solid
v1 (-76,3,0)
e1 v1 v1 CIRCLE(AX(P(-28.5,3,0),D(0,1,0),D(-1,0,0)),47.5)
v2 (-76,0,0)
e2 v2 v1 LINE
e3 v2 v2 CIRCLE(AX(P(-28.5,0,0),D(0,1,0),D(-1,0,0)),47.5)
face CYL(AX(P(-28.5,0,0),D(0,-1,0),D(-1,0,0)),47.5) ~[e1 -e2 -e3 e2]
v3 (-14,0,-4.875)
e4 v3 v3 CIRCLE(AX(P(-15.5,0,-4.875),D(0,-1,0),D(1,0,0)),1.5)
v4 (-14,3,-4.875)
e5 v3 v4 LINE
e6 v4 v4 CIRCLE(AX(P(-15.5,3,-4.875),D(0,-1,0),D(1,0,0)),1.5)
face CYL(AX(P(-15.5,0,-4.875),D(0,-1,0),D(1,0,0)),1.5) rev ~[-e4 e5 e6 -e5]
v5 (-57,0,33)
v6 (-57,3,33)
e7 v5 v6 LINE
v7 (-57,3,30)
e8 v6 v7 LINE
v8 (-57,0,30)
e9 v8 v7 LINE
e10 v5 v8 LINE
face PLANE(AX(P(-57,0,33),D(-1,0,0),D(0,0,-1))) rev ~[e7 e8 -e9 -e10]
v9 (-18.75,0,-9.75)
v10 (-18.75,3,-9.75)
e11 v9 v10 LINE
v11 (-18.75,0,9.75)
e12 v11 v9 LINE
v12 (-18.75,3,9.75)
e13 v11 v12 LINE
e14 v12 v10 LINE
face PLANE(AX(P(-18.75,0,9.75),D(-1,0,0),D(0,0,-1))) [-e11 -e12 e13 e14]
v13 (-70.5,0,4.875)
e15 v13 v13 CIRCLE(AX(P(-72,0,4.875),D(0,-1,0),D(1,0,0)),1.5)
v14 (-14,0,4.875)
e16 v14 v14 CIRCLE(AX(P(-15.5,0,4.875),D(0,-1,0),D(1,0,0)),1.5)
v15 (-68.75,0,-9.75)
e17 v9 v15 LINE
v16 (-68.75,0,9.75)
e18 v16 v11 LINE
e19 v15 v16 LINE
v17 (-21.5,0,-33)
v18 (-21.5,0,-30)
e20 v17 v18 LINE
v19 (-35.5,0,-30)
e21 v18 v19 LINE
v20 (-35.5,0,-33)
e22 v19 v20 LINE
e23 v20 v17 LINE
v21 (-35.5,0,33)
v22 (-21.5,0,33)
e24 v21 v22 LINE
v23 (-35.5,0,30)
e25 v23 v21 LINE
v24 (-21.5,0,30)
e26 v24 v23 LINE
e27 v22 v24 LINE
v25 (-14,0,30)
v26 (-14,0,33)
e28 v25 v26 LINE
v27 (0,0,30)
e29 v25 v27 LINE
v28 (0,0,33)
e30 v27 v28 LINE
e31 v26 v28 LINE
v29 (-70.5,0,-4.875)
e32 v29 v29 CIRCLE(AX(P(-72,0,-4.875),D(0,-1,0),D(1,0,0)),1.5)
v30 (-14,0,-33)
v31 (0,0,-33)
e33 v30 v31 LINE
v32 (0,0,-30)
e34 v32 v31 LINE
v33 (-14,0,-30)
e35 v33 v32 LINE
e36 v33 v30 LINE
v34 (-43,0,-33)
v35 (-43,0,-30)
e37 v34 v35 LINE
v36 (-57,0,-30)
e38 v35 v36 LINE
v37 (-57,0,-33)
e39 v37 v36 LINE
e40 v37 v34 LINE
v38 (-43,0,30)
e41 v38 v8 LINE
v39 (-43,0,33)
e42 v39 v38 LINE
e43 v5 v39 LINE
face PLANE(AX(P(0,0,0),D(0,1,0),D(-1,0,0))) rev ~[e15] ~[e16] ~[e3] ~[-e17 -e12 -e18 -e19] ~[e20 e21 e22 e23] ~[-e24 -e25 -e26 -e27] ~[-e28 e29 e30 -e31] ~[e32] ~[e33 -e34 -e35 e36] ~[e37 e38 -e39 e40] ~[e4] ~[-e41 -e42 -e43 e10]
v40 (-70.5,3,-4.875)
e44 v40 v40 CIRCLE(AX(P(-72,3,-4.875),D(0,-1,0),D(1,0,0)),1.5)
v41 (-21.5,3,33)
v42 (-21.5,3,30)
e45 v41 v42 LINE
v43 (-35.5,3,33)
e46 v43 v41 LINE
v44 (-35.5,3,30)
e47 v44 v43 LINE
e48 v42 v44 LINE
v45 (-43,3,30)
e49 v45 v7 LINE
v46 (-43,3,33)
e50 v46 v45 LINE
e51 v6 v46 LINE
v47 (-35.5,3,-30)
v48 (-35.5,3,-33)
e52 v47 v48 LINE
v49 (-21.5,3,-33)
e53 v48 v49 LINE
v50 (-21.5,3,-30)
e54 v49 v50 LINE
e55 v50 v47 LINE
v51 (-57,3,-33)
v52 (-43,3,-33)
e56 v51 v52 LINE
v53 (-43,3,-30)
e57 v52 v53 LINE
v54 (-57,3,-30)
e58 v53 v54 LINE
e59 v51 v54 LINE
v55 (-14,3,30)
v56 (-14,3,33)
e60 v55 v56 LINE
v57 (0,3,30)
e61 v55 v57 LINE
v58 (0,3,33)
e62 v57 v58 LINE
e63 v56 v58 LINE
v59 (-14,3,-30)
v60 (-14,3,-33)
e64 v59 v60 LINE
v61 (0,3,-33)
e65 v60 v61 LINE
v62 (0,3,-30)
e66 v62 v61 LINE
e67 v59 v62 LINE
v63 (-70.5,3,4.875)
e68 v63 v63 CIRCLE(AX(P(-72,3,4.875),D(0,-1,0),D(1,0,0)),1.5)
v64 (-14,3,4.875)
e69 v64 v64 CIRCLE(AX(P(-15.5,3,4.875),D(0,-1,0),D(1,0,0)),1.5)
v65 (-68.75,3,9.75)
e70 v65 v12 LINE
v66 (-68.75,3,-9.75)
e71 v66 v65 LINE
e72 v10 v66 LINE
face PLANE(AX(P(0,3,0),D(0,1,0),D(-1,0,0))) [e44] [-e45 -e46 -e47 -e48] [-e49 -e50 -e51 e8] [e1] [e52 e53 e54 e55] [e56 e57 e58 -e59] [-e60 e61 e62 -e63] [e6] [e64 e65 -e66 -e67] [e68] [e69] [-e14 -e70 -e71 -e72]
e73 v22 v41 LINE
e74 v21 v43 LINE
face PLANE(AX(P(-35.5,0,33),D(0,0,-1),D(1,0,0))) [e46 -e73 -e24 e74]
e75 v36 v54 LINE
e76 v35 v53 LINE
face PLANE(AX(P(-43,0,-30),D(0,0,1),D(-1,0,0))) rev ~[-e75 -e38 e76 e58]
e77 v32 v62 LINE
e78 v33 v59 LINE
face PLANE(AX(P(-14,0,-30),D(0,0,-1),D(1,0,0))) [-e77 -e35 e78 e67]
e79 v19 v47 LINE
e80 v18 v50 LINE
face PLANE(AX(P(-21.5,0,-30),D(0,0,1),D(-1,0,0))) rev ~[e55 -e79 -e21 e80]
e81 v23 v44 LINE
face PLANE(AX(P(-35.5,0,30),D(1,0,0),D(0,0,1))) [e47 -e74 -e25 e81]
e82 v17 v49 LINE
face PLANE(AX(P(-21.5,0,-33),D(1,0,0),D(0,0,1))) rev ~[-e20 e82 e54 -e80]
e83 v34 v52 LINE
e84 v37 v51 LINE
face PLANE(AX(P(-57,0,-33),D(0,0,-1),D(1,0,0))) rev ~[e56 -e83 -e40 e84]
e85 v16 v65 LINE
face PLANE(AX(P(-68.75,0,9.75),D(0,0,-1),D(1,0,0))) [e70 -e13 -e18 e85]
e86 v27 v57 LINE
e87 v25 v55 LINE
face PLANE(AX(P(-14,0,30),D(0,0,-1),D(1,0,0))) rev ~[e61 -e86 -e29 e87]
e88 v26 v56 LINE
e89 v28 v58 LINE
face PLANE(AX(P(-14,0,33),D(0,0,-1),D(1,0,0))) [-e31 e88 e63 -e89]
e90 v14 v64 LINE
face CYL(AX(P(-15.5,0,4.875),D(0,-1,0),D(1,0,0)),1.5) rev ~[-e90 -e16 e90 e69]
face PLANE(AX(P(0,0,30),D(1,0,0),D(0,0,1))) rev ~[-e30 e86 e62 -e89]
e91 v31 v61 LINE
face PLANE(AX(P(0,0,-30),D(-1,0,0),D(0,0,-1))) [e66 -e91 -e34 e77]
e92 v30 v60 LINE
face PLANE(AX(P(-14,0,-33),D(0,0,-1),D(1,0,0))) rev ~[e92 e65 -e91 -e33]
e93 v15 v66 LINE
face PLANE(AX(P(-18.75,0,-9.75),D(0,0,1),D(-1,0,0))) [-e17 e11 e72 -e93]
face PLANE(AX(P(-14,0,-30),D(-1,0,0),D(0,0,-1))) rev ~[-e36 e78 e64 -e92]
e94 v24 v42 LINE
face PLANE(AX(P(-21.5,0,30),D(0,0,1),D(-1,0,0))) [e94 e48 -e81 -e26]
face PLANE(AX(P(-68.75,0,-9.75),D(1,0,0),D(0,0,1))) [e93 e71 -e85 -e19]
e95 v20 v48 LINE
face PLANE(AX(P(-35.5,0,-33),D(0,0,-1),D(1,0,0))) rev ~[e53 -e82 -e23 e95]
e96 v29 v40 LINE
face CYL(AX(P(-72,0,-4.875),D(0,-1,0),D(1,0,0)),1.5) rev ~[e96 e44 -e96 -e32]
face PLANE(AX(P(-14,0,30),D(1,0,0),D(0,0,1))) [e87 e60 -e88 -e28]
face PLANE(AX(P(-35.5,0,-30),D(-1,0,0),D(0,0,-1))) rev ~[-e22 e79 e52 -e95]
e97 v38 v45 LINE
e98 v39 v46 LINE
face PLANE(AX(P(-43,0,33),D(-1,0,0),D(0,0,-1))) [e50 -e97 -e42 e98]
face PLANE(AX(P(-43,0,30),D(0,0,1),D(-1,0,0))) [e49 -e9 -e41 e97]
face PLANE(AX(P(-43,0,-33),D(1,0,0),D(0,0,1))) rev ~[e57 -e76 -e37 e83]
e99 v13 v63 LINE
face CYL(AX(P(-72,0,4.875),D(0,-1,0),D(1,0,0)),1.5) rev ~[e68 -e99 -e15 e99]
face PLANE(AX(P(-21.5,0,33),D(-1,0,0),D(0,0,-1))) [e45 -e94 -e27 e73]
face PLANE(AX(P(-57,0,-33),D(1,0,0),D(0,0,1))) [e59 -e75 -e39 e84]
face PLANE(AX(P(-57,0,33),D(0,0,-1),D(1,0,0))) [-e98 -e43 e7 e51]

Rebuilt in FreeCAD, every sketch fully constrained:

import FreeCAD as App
import Part
import Sketcher

V = App.Vector

doc = App.newDocument("Part")
body = doc.addObject("PartDesign::Body", "Body")

# Sketch on XZ plane
sketch1 = body.newObject("Sketcher::SketchObject", "Sketch")
sketch1.AttachmentSupport = (doc.getObject("XZ_Plane"), [""])
sketch1.MapMode = "FlatFace"
sketch1.addGeometry(Part.Circle(V(-28.5, 0, 0), V(0, 0, 1), 47.5), False)
sketch1.addGeometry(Part.LineSegment(V(0, -30, 0), V(-14, -30, 0)), False)
sketch1.addGeometry(Part.LineSegment(V(-14, -30, 0), V(-14, -33, 0)), False)
sketch1.addGeometry(Part.LineSegment(V(-14, -33, 0), V(0, -33, 0)), False)
sketch1.addGeometry(Part.LineSegment(V(0, -33, 0), V(0, -30, 0)), False)
sketch1.addGeometry(Part.LineSegment(V(-21.5, -30, 0), V(-35.5, -30, 0)), False)
sketch1.addGeometry(Part.LineSegment(V(-35.5, -30, 0), V(-35.5, -33, 0)), False)
sketch1.addGeometry(Part.LineSegment(V(-35.5, -33, 0), V(-21.5, -33, 0)), False)
sketch1.addGeometry(Part.LineSegment(V(-21.5, -33, 0), V(-21.5, -30, 0)), False)
sketch1.addGeometry(Part.LineSegment(V(-57, -30, 0), V(-57, -33, 0)), False)
sketch1.addGeometry(Part.LineSegment(V(-57, -33, 0), V(-43, -33, 0)), False)
sketch1.addGeometry(Part.LineSegment(V(-43, -33, 0), V(-43, -30, 0)), False)
sketch1.addGeometry(Part.LineSegment(V(-43, -30, 0), V(-57, -30, 0)), False)
sketch1.addGeometry(Part.Circle(V(-28.5, -8, 0), V(0, 0, 1), 1.5), False)
sketch1.addGeometry(Part.Circle(V(-20.5, 0, 0), V(0, 0, 1), 1.5), False)
sketch1.addGeometry(Part.LineSegment(V(-14, 33, 0), V(-14, 30, 0)), False)
sketch1.addGeometry(Part.LineSegment(V(-14, 30, 0), V(0, 30, 0)), False)
sketch1.addGeometry(Part.LineSegment(V(0, 30, 0), V(0, 33, 0)), False)
sketch1.addGeometry(Part.LineSegment(V(0, 33, 0), V(-14, 33, 0)), False)
sketch1.addGeometry(Part.Circle(V(-28.5, 0, 0), V(0, 0, 1), 1.5), False)
sketch1.addGeometry(Part.Circle(V(-36.5, 0, 0), V(0, 0, 1), 1.5), False)
sketch1.addGeometry(Part.Circle(V(-28.5, 8, 0), V(0, 0, 1), 1.5), False)
sketch1.addGeometry(Part.LineSegment(V(-35.5, 33, 0), V(-35.5, 30, 0)), False)
sketch1.addGeometry(Part.LineSegment(V(-35.5, 30, 0), V(-21.5, 30, 0)), False)
sketch1.addGeometry(Part.LineSegment(V(-21.5, 30, 0), V(-21.5, 33, 0)), False)
sketch1.addGeometry(Part.LineSegment(V(-21.5, 33, 0), V(-35.5, 33, 0)), False)
sketch1.addGeometry(Part.LineSegment(V(-43, 33, 0), V(-57, 33, 0)), False)
sketch1.addGeometry(Part.LineSegment(V(-57, 33, 0), V(-57, 30, 0)), False)
sketch1.addGeometry(Part.LineSegment(V(-57, 30, 0), V(-43, 30, 0)), False)
sketch1.addGeometry(Part.LineSegment(V(-43, 30, 0), V(-43, 33, 0)), False)
sketch1.addConstraint(Sketcher.Constraint("Coincident", 1, 2, 2, 1))
sketch1.addConstraint(Sketcher.Constraint("Coincident", 2, 2, 3, 1))
sketch1.addConstraint(Sketcher.Constraint("Coincident", 3, 2, 4, 1))
sketch1.addConstraint(Sketcher.Constraint("Coincident", 4, 2, 1, 1))
sketch1.addConstraint(Sketcher.Constraint("Coincident", 5, 2, 6, 1))
sketch1.addConstraint(Sketcher.Constraint("Coincident", 6, 2, 7, 1))
sketch1.addConstraint(Sketcher.Constraint("Coincident", 7, 2, 8, 1))
sketch1.addConstraint(Sketcher.Constraint("Coincident", 8, 2, 5, 1))
sketch1.addConstraint(Sketcher.Constraint("Coincident", 9, 2, 10, 1))
sketch1.addConstraint(Sketcher.Constraint("Coincident", 10, 2, 11, 1))
sketch1.addConstraint(Sketcher.Constraint("Coincident", 11, 2, 12, 1))
sketch1.addConstraint(Sketcher.Constraint("Coincident", 12, 2, 9, 1))
sketch1.addConstraint(Sketcher.Constraint("Coincident", 15, 2, 16, 1))
sketch1.addConstraint(Sketcher.Constraint("Coincident", 16, 2, 17, 1))
sketch1.addConstraint(Sketcher.Constraint("Coincident", 17, 2, 18, 1))
sketch1.addConstraint(Sketcher.Constraint("Coincident", 18, 2, 15, 1))
sketch1.addConstraint(Sketcher.Constraint("Coincident", 22, 2, 23, 1))
sketch1.addConstraint(Sketcher.Constraint("Coincident", 23, 2, 24, 1))
sketch1.addConstraint(Sketcher.Constraint("Coincident", 24, 2, 25, 1))
sketch1.addConstraint(Sketcher.Constraint("Coincident", 25, 2, 22, 1))
sketch1.addConstraint(Sketcher.Constraint("Coincident", 26, 2, 27, 1))
sketch1.addConstraint(Sketcher.Constraint("Coincident", 27, 2, 28, 1))
sketch1.addConstraint(Sketcher.Constraint("Coincident", 28, 2, 29, 1))
sketch1.addConstraint(Sketcher.Constraint("Coincident", 29, 2, 26, 1))
sketch1.addConstraint(Sketcher.Constraint("Horizontal", 1))
sketch1.addConstraint(Sketcher.Constraint("Vertical", 2))
sketch1.addConstraint(Sketcher.Constraint("Horizontal", 3))
sketch1.addConstraint(Sketcher.Constraint("Vertical", 4))
sketch1.addConstraint(Sketcher.Constraint("Horizontal", 5))
sketch1.addConstraint(Sketcher.Constraint("Vertical", 6))
sketch1.addConstraint(Sketcher.Constraint("Horizontal", 7))
sketch1.addConstraint(Sketcher.Constraint("Vertical", 8))
sketch1.addConstraint(Sketcher.Constraint("Vertical", 9))
sketch1.addConstraint(Sketcher.Constraint("Horizontal", 10))
sketch1.addConstraint(Sketcher.Constraint("Vertical", 11))
sketch1.addConstraint(Sketcher.Constraint("Horizontal", 12))
sketch1.addConstraint(Sketcher.Constraint("Vertical", 15))
sketch1.addConstraint(Sketcher.Constraint("Horizontal", 16))
sketch1.addConstraint(Sketcher.Constraint("Vertical", 17))
sketch1.addConstraint(Sketcher.Constraint("Horizontal", 18))
sketch1.addConstraint(Sketcher.Constraint("Vertical", 22))
sketch1.addConstraint(Sketcher.Constraint("Horizontal", 23))
sketch1.addConstraint(Sketcher.Constraint("Vertical", 24))
sketch1.addConstraint(Sketcher.Constraint("Horizontal", 25))
sketch1.addConstraint(Sketcher.Constraint("Horizontal", 26))
sketch1.addConstraint(Sketcher.Constraint("Vertical", 27))
sketch1.addConstraint(Sketcher.Constraint("Horizontal", 28))
sketch1.addConstraint(Sketcher.Constraint("Vertical", 29))
sketch1.addConstraint(Sketcher.Constraint("Coincident", 19, 3, 0, 3))
sketch1.addConstraint(Sketcher.Constraint("Equal", 13, 14))
sketch1.addConstraint(Sketcher.Constraint("Equal", 14, 19))
sketch1.addConstraint(Sketcher.Constraint("Equal", 19, 20))
sketch1.addConstraint(Sketcher.Constraint("Equal", 20, 21))
sketch1.addConstraint(Sketcher.Constraint("Symmetric", 4, 2, 16, 2, -1, 1))
sketch1.addConstraint(Sketcher.Constraint("Symmetric", 13, 3, 21, 3, -1))
sketch1.addConstraint(Sketcher.Constraint("Symmetric", 3, 2, 17, 2, -1))
sketch1.addConstraint(Sketcher.Constraint("Symmetric", 5, 2, 22, 2, -1))
sketch1.addConstraint(Sketcher.Constraint("Symmetric", 7, 2, 24, 2, -1))
sketch1.addConstraint(Sketcher.Constraint("Symmetric", 9, 2, 26, 2, -1))
sketch1.addConstraint(Sketcher.Constraint("Symmetric", 11, 2, 28, 2, -1))
sketch1.addConstraint(Sketcher.Constraint("PointOnObject", 0, 3, -1))
sketch1.addConstraint(Sketcher.Constraint("PointOnObject", 14, 3, -1))
sketch1.addConstraint(Sketcher.Constraint("PointOnObject", 20, 3, -1))
sketch1.addConstraint(Sketcher.Constraint("Horizontal", 4, 2, 5, 2))
sketch1.addConstraint(Sketcher.Constraint("Horizontal", 3, 2, 6, 2))
sketch1.addConstraint(Sketcher.Constraint("Horizontal", 7, 2, 9, 2))
sketch1.addConstraint(Sketcher.Constraint("Horizontal", 8, 2, 11, 2))
sketch1.addConstraint(Sketcher.Constraint("Vertical", 0, 3, 13, 3))
sketch1.addConstraint(Sketcher.Constraint("Vertical", 2, 2, 15, 2))
sketch1.addConstraint(Sketcher.Constraint("Equal", 3, 5))
sketch1.addConstraint(Sketcher.Constraint("Equal", 7, 10))
sketch1.addConstraint(Sketcher.Constraint("Diameter", 0, 95.0))
sketch1.addConstraint(Sketcher.Constraint("Diameter", 13, 3.0))
sketch1.addConstraint(Sketcher.Constraint("DistanceX", 1, 2, 1, 1, 14.0))
sketch1.addConstraint(Sketcher.Constraint("DistanceY", 2, 2, 2, 1, 3.0))
sketch1.addConstraint(Sketcher.Constraint("DistanceY", 13, 3, -1, 1, 8.0))
sketch1.addConstraint(Sketcher.Constraint("DistanceY", 1, 2, -1, 1, 30.0))
sketch1.addConstraint(Sketcher.Constraint("DistanceX", 9, 2, -1, 1, 57.0))
sketch1.addConstraint(Sketcher.Constraint("DistanceX", 0, 3, 14, 3, 8.0))
sketch1.addConstraint(Sketcher.Constraint("DistanceX", 20, 3, 0, 3, 8.0))
sketch1.addConstraint(Sketcher.Constraint("DistanceX", 5, 2, 13, 3, 7.0))
sketch1.addConstraint(Sketcher.Constraint("DistanceX", 0, 3, -1, 1, 28.5))
pad1 = body.newObject("PartDesign::Pad", "Pad")
pad1.Profile = sketch1
pad1.Length = 3
pad1.Reversed = True

# Sketch on XZ plane
sketch2 = body.newObject("Sketcher::SketchObject", "Sketch001")
sketch2.AttachmentSupport = (doc.getObject("XZ_Plane"), [""])
sketch2.MapMode = "FlatFace"
sketch2.addGeometry(Part.Circle(V(-28.5, 0, 0), V(0, 0, 1), 3.5), False)
sketch2.addConstraint(Sketcher.Constraint("PointOnObject", 0, 3, -1))
sketch2.addConstraint(Sketcher.Constraint("Diameter", 0, 7.0))
sketch2.addConstraint(Sketcher.Constraint("DistanceX", 0, 3, -1, 1, 28.5))
pocket1 = body.newObject("PartDesign::Pocket", "Pocket")
pocket1.Profile = sketch2
pocket1.Length = 10

# Sketch on XZ plane
sketch3 = body.newObject("Sketcher::SketchObject", "Sketch002")
sketch3.AttachmentSupport = (doc.getObject("XZ_Plane"), [""])
sketch3.MapMode = "FlatFace"
sketch3.addGeometry(Part.Circle(V(-28.5, 0, 0), V(0, 0, 1), 4.5), False)
sketch3.addConstraint(Sketcher.Constraint("PointOnObject", 0, 3, -1))
sketch3.addConstraint(Sketcher.Constraint("Diameter", 0, 9.0))
sketch3.addConstraint(Sketcher.Constraint("DistanceX", 0, 3, -1, 1, 28.5))
pocket2 = body.newObject("PartDesign::Pocket", "Pocket001")
pocket2.Profile = sketch3
pocket2.Length = 10

# Sketch on XZ plane
sketch4 = body.newObject("Sketcher::SketchObject", "Sketch003")
sketch4.AttachmentSupport = (doc.getObject("XZ_Plane"), [""])
sketch4.MapMode = "FlatFace"
sketch4.addGeometry(Part.LineSegment(V(-18.8, 9.8, 0), V(-68.8, 9.8, 0)), False)
sketch4.addGeometry(Part.LineSegment(V(-68.8, 9.8, 0), V(-68.8, -9.8, 0)), False)
sketch4.addGeometry(Part.LineSegment(V(-68.8, -9.8, 0), V(-18.8, -9.8, 0)), False)
sketch4.addGeometry(Part.LineSegment(V(-18.8, -9.8, 0), V(-18.8, 9.8, 0)), False)
sketch4.addGeometry(Part.Circle(V(-72, 4.9, 0), V(0, 0, 1), 1.5), False)
sketch4.addGeometry(Part.Circle(V(-72, -4.9, 0), V(0, 0, 1), 1.5), False)
sketch4.addGeometry(Part.Circle(V(-15.5, 4.9, 0), V(0, 0, 1), 1.5), False)
sketch4.addGeometry(Part.Circle(V(-15.5, -4.9, 0), V(0, 0, 1), 1.5), False)
sketch4.addConstraint(Sketcher.Constraint("Coincident", 0, 2, 1, 1))
sketch4.addConstraint(Sketcher.Constraint("Coincident", 1, 2, 2, 1))
sketch4.addConstraint(Sketcher.Constraint("Coincident", 2, 2, 3, 1))
sketch4.addConstraint(Sketcher.Constraint("Coincident", 3, 2, 0, 1))
sketch4.addConstraint(Sketcher.Constraint("Horizontal", 0))
sketch4.addConstraint(Sketcher.Constraint("Vertical", 1))
sketch4.addConstraint(Sketcher.Constraint("Horizontal", 2))
sketch4.addConstraint(Sketcher.Constraint("Vertical", 3))
sketch4.addConstraint(Sketcher.Constraint("Equal", 4, 5))
sketch4.addConstraint(Sketcher.Constraint("Equal", 5, 6))
sketch4.addConstraint(Sketcher.Constraint("Equal", 6, 7))
sketch4.addConstraint(Sketcher.Constraint("Symmetric", 4, 3, 5, 3, -1))
sketch4.addConstraint(Sketcher.Constraint("Symmetric", 6, 3, 7, 3, -1))
sketch4.addConstraint(Sketcher.Constraint("Horizontal", 4, 3, 6, 3))
sketch4.addConstraint(Sketcher.Constraint("DistanceX", 0, 2, 0, 1, 50.0))
sketch4.addConstraint(Sketcher.Constraint("Diameter", 4, 3.0))
sketch4.addConstraint(Sketcher.Constraint("DistanceY", 1, 2, 1, 1, 19.5))
sketch4.addConstraint(Sketcher.Constraint("DistanceX", 4, 3, -1, 1, 72.0))
sketch4.addConstraint(Sketcher.Constraint("DistanceX", 6, 3, -1, 1, 15.5))
sketch4.addConstraint(Sketcher.Constraint("DistanceX", 0, 2, -1, 1, 68.75))
sketch4.addConstraint(Sketcher.Constraint("DistanceY", -1, 1, 0, 2, 9.75))
sketch4.addConstraint(Sketcher.Constraint("DistanceY", 5, 3, 4, 3, 9.75))
pocket3 = body.newObject("PartDesign::Pocket", "Pocket002")
pocket3.Profile = sketch4
pocket3.Length = 3

doc.recompute()
